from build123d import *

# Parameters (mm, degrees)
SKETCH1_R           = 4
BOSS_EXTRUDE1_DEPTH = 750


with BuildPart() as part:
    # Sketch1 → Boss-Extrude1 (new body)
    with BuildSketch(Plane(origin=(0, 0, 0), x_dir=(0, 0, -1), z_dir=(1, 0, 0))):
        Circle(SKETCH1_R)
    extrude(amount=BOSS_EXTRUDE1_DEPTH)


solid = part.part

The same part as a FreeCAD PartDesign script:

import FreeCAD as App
import Part
import Sketcher

V = App.Vector
Q = App.Units.Quantity

doc = App.newDocument("Part")
body = doc.addObject("PartDesign::Body", "Body")

# Sketch on YZ plane
sketch1 = doc.addObject("Sketcher::SketchObject", "Sketch")
body.addObject(sketch1)
sketch1.AttachmentSupport = (doc.YZ_Plane, [""])
sketch1.MapMode = "FlatFace"
sketch1.addGeometry(Part.Circle(V(0, 0, 0), V(0, 0, 1), 4), False)
sketch1.addConstraint([
    Sketcher.Constraint("Coincident", 0, 3, -1, 1),
    Sketcher.Constraint("Diameter", 0, Q("8 mm")),
])
pad1 = doc.addObject("PartDesign::Pad", "Pad")
body.addObject(pad1)
pad1.Profile = sketch1
pad1.Length = 750

doc.recompute()
